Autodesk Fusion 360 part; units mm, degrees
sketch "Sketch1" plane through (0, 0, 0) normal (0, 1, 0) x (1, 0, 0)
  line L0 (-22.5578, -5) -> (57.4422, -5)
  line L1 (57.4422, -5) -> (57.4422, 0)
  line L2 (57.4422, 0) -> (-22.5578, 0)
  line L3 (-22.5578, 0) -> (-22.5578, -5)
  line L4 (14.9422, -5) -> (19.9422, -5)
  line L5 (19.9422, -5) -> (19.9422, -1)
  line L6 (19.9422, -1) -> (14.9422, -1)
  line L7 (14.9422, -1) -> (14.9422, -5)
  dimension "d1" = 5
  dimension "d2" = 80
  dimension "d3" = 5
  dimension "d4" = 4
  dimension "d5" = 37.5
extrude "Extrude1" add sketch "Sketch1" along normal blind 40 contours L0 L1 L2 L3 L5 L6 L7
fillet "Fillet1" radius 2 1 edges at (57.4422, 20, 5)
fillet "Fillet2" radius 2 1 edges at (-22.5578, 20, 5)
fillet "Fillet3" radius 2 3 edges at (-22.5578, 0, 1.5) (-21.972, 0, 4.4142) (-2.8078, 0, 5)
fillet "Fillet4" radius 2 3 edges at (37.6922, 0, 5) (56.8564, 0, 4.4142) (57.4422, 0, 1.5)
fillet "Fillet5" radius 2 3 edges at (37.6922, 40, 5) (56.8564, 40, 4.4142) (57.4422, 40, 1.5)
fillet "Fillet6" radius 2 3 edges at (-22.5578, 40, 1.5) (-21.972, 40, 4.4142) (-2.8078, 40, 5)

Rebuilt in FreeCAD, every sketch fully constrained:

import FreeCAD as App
import Part
import Sketcher


def edges_at(feature, points):
    """Names of the edges that pass closest to the given points."""
    edges = feature.Shape.Edges
    near = lambda p: min(range(len(edges)), key=lambda i: edges[i].distToShape(Part.Vertex(*p))[0])
    return sorted({f"Edge{near(p) + 1}" for p in points})

doc = App.newDocument("Part")
params = doc.addObject("Spreadsheet::Sheet", "Params")
for row, (alias, value) in enumerate([
    ("sketch1_width", "5 mm"),
    ("sketch1_width2", "80 mm"),
    ("sketch1_height", "4 mm"),
    ("pad1_length", "40 mm"),
    ("fillet_radius", "2 mm"),
    ("fillet2_radius", "2 mm"),
    ("fillet3_radius", "2 mm"),
    ("fillet4_radius", "2 mm"),
    ("fillet5_radius", "2 mm"),
    ("fillet6_radius", "2 mm"),
], start=1):
    params.set(f"A{row}", alias)
    params.set(f"B{row}", "=" + value)
    params.setAlias(f"B{row}", alias)

body = doc.addObject("PartDesign::Body", "Body")

sketch1 = body.newObject("Sketcher::SketchObject", "Sketch")
sketch1.AttachmentSupport = (doc.getObject("XZ_Plane"), [""])
sketch1.MapMode = "FlatFace"
sketch1.addGeometry([
    Part.LineSegment(App.Vector(-22.5578, 0, 0), App.Vector(-22.5578, 5, 0)),
    Part.LineSegment(App.Vector(-22.5578, 5, 0), App.Vector(14.9422, 5, 0)),
    Part.LineSegment(App.Vector(14.9422, 5, 0), App.Vector(14.9422, 1, 0)),
    Part.LineSegment(App.Vector(14.9422, 1, 0), App.Vector(19.9422, 1, 0)),
    Part.LineSegment(App.Vector(19.9422, 1, 0), App.Vector(19.9422, 5, 0)),
    Part.LineSegment(App.Vector(19.9422, 5, 0), App.Vector(57.4422, 5, 0)),
    Part.LineSegment(App.Vector(57.4422, 5, 0), App.Vector(57.4422, 0, 0)),
    Part.LineSegment(App.Vector(57.4422, 0, 0), App.Vector(-22.5578, 0, 0)),
], False)
sketch1.addConstraint([
    Sketcher.Constraint("Coincident", 0, 2, 1, 1),
    Sketcher.Constraint("Coincident", 1, 2, 2, 1),
    Sketcher.Constraint("Coincident", 2, 2, 3, 1),
    Sketcher.Constraint("Coincident", 3, 2, 4, 1),
    Sketcher.Constraint("Coincident", 4, 2, 5, 1),
    Sketcher.Constraint("Coincident", 5, 2, 6, 1),
    Sketcher.Constraint("Coincident", 6, 2, 7, 1),
    Sketcher.Constraint("Coincident", 7, 2, 0, 1),
    Sketcher.Constraint("Vertical", 0),
    Sketcher.Constraint("Horizontal", 1),
    Sketcher.Constraint("Vertical", 2),
    Sketcher.Constraint("Horizontal", 3),
    Sketcher.Constraint("Vertical", 4),
    Sketcher.Constraint("Horizontal", 5),
    Sketcher.Constraint("Vertical", 6),
    Sketcher.Constraint("Horizontal", 7),
    Sketcher.Constraint("PointOnObject", 6, 2, -1),
    Sketcher.Constraint("Horizontal", 1, 2, 4, 2),
    Sketcher.Constraint("Equal", 1, 5),
    Sketcher.Constraint("Equal", 3, 0),
    Sketcher.Constraint("DistanceX", 3, 1, 3, 2, 5.0),
    Sketcher.Constraint("DistanceX", 7, 2, 7, 1, 80.0),
    Sketcher.Constraint("DistanceY", 2, 2, 2, 1, 4.0),
    Sketcher.Constraint("DistanceX", 0, 2, -1, 1, 22.5578),
])
sketch1.setExpression("Constraints[20]", "Params.sketch1_width")
sketch1.setExpression("Constraints[21]", "Params.sketch1_width2")
sketch1.setExpression("Constraints[22]", "Params.sketch1_height")
pad1 = body.newObject("PartDesign::Pad", "Pad")
pad1.Profile = sketch1
pad1.setExpression("Length", "Params.pad1_length")
pad1.Reversed = True
doc.recompute()

fillet = body.newObject("PartDesign::Fillet", "Fillet")
fillet.Base = (pad1, edges_at(pad1, [(57.442, 20, 5)]))
fillet.setExpression("Radius", "Params.fillet_radius")
doc.recompute()

fillet2 = body.newObject("PartDesign::Fillet", "Fillet001")
fillet2.Base = (fillet, edges_at(fillet, [(-22.558, 20, 5)]))
fillet2.setExpression("Radius", "Params.fillet2_radius")
doc.recompute()

fillet3 = body.newObject("PartDesign::Fillet", "Fillet002")
fillet3.Base = (fillet2, edges_at(fillet2, [(-22.558, 0, 1.5), (-21.972, 0, 4.414), (-2.808, 0, 5)]))
fillet3.setExpression("Radius", "Params.fillet3_radius")
doc.recompute()

fillet4 = body.newObject("PartDesign::Fillet", "Fillet003")
fillet4.Base = (fillet3, edges_at(fillet3, [(37.692, 0, 5), (56.856, 0, 4.414), (57.442, 0, 1.5)]))
fillet4.setExpression("Radius", "Params.fillet4_radius")
doc.recompute()

fillet5 = body.newObject("PartDesign::Fillet", "Fillet004")
fillet5.Base = (fillet4, edges_at(fillet4, [(37.692, 40, 5), (56.856, 40, 4.414), (57.442, 40, 1.5)]))
fillet5.setExpression("Radius", "Params.fillet5_radius")
doc.recompute()

fillet6 = body.newObject("PartDesign::Fillet", "Fillet005")
fillet6.Base = (fillet5, edges_at(fillet5, [(-22.558, 40, 1.5), (-21.972, 40, 4.414), (-2.808, 40, 5)]))
fillet6.setExpression("Radius", "Params.fillet6_radius")

doc.recompute()
